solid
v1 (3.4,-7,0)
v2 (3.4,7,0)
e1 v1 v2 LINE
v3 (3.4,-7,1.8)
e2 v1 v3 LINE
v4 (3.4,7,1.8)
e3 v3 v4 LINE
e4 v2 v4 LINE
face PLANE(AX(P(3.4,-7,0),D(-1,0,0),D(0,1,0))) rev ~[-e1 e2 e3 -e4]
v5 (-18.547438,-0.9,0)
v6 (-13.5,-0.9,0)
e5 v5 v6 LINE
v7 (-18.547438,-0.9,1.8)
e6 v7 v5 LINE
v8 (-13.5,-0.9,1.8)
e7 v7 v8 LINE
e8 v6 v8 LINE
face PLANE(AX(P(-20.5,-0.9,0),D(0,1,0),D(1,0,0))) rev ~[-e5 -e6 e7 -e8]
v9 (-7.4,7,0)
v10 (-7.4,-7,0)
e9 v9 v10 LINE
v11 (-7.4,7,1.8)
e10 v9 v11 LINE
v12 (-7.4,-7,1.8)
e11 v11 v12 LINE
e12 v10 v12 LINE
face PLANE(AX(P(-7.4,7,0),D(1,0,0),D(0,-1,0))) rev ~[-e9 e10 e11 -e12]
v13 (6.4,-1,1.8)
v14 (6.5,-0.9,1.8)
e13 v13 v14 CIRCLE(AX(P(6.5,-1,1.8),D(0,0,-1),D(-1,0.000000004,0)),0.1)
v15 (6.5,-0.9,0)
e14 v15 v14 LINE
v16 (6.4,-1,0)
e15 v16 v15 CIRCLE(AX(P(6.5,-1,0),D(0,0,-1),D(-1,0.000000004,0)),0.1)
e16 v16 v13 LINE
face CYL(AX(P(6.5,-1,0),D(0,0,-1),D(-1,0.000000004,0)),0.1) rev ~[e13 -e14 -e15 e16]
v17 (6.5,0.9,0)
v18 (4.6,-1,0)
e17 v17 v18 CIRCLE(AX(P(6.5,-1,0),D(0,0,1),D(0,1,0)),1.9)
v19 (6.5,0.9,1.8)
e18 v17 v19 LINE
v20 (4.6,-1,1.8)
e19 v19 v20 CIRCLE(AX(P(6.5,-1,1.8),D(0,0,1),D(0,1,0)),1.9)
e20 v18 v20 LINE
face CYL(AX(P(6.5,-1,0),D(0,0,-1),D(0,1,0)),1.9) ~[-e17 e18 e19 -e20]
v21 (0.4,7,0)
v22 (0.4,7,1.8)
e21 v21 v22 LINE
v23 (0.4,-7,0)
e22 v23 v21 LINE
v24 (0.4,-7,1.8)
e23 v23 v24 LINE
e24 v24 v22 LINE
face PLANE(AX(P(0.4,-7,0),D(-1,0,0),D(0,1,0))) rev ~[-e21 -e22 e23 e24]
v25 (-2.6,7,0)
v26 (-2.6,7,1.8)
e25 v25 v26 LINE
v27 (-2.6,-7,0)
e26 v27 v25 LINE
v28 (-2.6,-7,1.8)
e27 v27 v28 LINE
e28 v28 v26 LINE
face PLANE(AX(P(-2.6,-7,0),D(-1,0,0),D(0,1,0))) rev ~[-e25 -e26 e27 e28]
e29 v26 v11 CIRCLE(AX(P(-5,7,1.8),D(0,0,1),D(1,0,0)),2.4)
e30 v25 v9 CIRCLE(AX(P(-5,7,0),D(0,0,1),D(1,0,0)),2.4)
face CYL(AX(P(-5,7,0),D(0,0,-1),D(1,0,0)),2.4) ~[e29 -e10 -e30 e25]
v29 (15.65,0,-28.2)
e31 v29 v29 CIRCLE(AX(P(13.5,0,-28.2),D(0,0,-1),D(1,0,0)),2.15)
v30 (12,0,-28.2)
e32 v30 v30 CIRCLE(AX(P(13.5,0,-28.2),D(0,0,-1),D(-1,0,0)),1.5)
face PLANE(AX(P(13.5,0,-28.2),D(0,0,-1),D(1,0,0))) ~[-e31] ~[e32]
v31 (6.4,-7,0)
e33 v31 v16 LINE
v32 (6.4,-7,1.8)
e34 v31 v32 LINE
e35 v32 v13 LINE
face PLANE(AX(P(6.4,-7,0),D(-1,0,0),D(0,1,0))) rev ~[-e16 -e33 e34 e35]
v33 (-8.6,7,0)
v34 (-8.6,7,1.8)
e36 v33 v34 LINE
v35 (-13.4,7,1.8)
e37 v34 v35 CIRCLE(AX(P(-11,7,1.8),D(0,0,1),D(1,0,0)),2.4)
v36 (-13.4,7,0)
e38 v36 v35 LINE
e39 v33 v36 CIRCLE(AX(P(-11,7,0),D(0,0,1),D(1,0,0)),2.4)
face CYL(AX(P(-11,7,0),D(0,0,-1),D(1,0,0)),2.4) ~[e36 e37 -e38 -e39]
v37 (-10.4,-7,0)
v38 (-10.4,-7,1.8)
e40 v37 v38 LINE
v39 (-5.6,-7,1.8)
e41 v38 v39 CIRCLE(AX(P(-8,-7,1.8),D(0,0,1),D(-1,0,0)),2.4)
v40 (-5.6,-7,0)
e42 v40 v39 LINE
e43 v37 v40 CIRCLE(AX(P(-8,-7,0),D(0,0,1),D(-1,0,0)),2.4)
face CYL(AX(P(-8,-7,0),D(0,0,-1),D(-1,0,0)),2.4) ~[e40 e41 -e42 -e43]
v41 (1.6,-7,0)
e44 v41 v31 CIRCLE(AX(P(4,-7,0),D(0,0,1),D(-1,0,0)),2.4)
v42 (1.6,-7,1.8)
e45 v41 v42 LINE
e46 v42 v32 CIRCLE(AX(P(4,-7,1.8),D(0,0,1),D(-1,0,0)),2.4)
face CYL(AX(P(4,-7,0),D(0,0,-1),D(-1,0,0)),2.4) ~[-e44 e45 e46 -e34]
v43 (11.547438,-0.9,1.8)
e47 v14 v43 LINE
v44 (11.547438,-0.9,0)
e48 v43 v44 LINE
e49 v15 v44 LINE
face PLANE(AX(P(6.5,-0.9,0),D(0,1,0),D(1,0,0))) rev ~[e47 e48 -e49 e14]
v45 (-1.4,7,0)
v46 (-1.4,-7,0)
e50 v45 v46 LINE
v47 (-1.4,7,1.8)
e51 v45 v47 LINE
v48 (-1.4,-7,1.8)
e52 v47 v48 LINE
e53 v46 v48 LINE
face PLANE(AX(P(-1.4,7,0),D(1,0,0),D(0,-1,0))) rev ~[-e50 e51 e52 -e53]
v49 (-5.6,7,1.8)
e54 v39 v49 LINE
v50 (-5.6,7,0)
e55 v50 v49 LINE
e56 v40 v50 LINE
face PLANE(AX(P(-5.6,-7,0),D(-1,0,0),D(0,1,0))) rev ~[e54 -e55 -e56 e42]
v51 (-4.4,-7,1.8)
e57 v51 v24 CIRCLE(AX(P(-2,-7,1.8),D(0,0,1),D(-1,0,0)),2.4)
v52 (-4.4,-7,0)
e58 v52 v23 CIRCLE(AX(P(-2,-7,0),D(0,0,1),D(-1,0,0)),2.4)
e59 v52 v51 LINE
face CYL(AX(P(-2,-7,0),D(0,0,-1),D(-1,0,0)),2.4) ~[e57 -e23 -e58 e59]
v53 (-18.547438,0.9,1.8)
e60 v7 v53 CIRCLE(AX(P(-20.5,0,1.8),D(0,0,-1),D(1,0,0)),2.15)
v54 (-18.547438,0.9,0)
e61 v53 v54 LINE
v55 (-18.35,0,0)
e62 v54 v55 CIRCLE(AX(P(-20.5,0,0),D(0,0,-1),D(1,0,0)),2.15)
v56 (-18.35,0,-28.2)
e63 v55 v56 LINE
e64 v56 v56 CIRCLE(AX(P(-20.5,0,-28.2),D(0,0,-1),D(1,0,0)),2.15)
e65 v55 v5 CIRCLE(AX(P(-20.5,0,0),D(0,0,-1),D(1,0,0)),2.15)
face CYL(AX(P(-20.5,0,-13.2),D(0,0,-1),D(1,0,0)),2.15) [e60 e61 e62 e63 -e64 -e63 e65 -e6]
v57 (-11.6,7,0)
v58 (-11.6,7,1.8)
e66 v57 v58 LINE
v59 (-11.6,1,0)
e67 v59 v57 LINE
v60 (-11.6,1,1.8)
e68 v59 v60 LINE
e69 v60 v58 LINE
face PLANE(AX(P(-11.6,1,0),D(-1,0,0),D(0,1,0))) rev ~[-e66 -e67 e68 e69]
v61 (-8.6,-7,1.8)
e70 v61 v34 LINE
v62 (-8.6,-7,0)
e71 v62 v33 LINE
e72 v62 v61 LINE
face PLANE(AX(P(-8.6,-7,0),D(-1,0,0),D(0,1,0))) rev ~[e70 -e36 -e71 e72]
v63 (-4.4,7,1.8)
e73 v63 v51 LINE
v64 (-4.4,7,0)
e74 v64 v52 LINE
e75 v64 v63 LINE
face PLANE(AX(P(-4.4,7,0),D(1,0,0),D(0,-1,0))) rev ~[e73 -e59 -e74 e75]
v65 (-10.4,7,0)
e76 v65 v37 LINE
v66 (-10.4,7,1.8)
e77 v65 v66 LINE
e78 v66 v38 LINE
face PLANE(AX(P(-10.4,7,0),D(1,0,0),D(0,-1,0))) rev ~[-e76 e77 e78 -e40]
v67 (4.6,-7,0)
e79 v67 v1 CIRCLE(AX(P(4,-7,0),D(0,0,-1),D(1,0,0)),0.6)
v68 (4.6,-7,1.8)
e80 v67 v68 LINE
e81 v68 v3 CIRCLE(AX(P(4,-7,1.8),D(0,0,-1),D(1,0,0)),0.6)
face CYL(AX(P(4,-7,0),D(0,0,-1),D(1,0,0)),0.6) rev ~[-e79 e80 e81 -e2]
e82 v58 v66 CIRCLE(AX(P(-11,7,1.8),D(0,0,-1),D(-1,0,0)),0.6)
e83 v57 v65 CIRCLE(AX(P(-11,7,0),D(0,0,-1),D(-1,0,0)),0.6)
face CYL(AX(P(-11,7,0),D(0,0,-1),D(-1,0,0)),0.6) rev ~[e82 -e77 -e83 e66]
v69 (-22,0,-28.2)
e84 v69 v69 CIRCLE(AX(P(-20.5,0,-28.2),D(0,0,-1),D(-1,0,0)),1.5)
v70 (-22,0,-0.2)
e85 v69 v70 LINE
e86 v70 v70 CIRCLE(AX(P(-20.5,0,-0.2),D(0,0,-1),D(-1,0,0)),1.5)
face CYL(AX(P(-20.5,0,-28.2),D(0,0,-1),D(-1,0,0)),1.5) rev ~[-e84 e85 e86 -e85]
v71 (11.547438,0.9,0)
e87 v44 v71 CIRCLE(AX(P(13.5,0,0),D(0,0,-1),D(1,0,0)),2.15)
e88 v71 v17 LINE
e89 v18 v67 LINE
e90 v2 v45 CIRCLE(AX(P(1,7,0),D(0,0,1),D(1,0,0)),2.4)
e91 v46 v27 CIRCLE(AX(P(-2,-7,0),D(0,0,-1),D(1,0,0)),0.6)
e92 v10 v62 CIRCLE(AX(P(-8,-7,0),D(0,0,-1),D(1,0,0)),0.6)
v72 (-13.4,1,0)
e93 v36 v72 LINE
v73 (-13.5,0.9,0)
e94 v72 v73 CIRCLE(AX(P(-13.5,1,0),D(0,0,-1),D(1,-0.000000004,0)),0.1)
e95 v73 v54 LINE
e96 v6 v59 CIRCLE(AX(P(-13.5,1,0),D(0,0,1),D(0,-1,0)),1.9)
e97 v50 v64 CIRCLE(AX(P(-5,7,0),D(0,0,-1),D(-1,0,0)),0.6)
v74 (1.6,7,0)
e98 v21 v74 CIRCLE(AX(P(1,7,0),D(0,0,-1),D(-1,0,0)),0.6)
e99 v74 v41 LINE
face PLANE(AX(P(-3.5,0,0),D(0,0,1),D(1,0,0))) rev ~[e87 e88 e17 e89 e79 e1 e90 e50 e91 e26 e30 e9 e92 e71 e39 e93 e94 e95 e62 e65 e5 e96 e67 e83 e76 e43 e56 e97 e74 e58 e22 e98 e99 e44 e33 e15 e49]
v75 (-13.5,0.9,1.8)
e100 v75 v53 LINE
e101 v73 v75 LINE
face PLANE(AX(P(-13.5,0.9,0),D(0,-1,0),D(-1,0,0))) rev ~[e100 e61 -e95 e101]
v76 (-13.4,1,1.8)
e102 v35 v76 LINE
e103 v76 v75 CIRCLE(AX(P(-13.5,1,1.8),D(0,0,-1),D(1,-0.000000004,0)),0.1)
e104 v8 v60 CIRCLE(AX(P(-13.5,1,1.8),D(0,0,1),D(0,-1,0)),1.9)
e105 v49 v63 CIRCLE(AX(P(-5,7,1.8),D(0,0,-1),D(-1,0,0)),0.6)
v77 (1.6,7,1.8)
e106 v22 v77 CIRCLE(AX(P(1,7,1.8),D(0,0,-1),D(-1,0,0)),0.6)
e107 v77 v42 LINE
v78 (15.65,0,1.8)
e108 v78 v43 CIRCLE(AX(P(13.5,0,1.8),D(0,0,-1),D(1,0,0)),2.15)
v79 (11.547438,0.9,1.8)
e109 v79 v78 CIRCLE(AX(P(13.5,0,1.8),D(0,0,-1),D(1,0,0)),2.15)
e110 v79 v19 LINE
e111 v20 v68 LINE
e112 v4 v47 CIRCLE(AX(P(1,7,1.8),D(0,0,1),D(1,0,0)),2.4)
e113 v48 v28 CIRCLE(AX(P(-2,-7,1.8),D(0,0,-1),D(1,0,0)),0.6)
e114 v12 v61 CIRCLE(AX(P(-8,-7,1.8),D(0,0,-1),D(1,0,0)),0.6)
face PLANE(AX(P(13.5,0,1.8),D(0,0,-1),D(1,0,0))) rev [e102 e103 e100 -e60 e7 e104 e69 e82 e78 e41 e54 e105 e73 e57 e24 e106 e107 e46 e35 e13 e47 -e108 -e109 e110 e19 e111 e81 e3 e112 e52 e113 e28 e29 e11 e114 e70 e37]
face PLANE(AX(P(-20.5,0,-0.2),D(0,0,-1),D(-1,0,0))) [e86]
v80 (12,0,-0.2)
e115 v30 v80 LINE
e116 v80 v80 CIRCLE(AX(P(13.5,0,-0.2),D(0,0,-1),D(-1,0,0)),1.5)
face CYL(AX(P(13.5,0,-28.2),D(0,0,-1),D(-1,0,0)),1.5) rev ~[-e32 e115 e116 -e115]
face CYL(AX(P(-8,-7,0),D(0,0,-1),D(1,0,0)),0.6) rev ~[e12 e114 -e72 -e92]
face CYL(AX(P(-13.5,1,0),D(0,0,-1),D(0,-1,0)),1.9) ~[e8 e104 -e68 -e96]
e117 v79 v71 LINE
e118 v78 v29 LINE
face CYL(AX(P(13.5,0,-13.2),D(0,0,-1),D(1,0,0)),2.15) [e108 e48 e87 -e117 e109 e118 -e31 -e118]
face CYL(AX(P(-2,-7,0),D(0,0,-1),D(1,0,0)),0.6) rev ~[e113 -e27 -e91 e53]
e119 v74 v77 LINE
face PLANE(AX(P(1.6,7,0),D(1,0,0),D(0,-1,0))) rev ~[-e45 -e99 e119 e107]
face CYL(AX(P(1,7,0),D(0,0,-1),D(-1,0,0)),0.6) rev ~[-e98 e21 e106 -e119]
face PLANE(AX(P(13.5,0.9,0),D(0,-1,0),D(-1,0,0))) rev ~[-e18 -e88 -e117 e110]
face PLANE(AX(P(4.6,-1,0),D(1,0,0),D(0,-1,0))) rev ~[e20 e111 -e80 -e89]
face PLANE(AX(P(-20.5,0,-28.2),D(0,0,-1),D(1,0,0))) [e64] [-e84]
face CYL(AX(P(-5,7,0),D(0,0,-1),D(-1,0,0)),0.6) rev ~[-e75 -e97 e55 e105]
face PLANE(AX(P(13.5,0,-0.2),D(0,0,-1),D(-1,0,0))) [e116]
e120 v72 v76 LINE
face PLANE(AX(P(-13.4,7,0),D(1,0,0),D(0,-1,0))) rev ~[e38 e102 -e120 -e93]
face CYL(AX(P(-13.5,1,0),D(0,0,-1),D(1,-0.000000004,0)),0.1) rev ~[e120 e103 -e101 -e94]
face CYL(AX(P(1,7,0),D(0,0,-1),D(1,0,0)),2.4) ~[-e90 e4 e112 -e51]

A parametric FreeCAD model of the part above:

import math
import FreeCAD as App
import Part
import Sketcher

V = App.Vector

doc = App.newDocument("Part")
params = doc.addObject("Spreadsheet::Sheet", "Params")
for row, (alias, value) in enumerate([
    ("sketch1_radius", "1.9 mm"),
    ("sketch1_radius2", "0.6 mm"),
    ("sketch1_radius3", "2.4 mm"),
    ("sketch1_width", "7 mm"),
    ("sketch1_height", "6 mm"),
    ("pad1_length", "1.8 mm"),
    ("sketch2_height", "30 mm"),
    ("sketch2_width", "2.15 mm"),
    ("revolution_angle", "360 deg"),
    ("sketch3_height", "30 mm"),
    ("sketch3_width", "2.15 mm"),
    ("revolution2_angle", "360 deg"),
    ("sketch4_diameter", "3 mm"),
    ("pocket1_length", "28 mm"),
], start=1):
    params.set(f"A{row}", alias)
    params.set(f"B{row}", "=" + value)
    params.setAlias(f"B{row}", alias)

body = doc.addObject("PartDesign::Body", "Body")

# Sketch on XY plane
sketch1 = body.newObject("Sketcher::SketchObject", "Sketch")
sketch1.AttachmentSupport = (doc.getObject("XY_Plane"), [""])
sketch1.MapMode = "FlatFace"
sketch1.addGeometry([
    Part.LineSegment(V(-20.5, -0.9, 0), V(-13.5, -0.9, 0)),  # 0
    Part.ArcOfCircle(Part.Circle(V(-13.5, 1, 0), V(0, 0, 1), 1.9), math.radians(-90), math.radians(0)),  # 1
    Part.LineSegment(V(-11.6, 1, 0), V(-11.6, 7, 0)),  # 2
    Part.ArcOfCircle(Part.Circle(V(-11, 7, 0), V(0, 0, 1), 0.6), math.radians(0), math.radians(180)),  # 3
    Part.LineSegment(V(-10.4, 7, 0), V(-10.4, -7, 0)),  # 4
    Part.ArcOfCircle(Part.Circle(V(-8, -7, 0), V(0, 0, 1), 2.4), math.radians(180), math.radians(360)),  # 5
    Part.LineSegment(V(-5.6, -7, 0), V(-5.6, 7, 0)),  # 6
    Part.ArcOfCircle(Part.Circle(V(-5, 7, 0), V(0, 0, 1), 0.6), math.radians(0), math.radians(180)),  # 7
    Part.LineSegment(V(-4.4, 7, 0), V(-4.4, -7, 0)),  # 8
    Part.ArcOfCircle(Part.Circle(V(-2, -7, 0), V(0, 0, 1), 2.4), math.radians(180), math.radians(360)),  # 9
    Part.LineSegment(V(0.4, -7, 0), V(0.4, 7, 0)),  # 10
    Part.ArcOfCircle(Part.Circle(V(1, 7, 0), V(0, 0, 1), 0.6), math.radians(0), math.radians(180)),  # 11
    Part.LineSegment(V(1.6, 7, 0), V(1.6, -7, 0)),  # 12
    Part.ArcOfCircle(Part.Circle(V(4, -7, 0), V(0, 0, 1), 2.4), math.radians(180), math.radians(360)),  # 13
    Part.LineSegment(V(6.4, -7, 0), V(6.4, -1, 0)),  # 14
    Part.ArcOfCircle(Part.Circle(V(6.5, -1, 0), V(0, 0, 1), 0.1), math.radians(90), math.radians(180)),  # 15
    Part.LineSegment(V(6.5, -0.9, 0), V(13.5, -0.9, 0)),  # 16
    Part.ArcOfCircle(Part.Circle(V(13.5, 0, 0), V(0, 0, 1), 0.9), math.radians(-90), math.radians(90)),  # 17
    Part.LineSegment(V(13.5, 0.9, 0), V(6.5, 0.9, 0)),  # 18
    Part.ArcOfCircle(Part.Circle(V(6.5, -1, 0), V(0, 0, 1), 1.9), math.radians(90), math.radians(180)),  # 19
    Part.LineSegment(V(4.6, -1, 0), V(4.6, -7, 0)),  # 20
    Part.ArcOfCircle(Part.Circle(V(4, -7, 0), V(0, 0, 1), 0.6), math.radians(180), math.radians(360)),  # 21
    Part.LineSegment(V(3.4, -7, 0), V(3.4, 7, 0)),  # 22
    Part.ArcOfCircle(Part.Circle(V(1, 7, 0), V(0, 0, 1), 2.4), math.radians(0), math.radians(180)),  # 23
    Part.LineSegment(V(-1.4, 7, 0), V(-1.4, -7, 0)),  # 24
    Part.ArcOfCircle(Part.Circle(V(-2, -7, 0), V(0, 0, 1), 0.6), math.radians(180), math.radians(360)),  # 25
    Part.LineSegment(V(-2.6, -7, 0), V(-2.6, 7, 0)),  # 26
    Part.ArcOfCircle(Part.Circle(V(-5, 7, 0), V(0, 0, 1), 2.4), math.radians(0), math.radians(180)),  # 27
    Part.LineSegment(V(-7.4, 7, 0), V(-7.4, -7, 0)),  # 28
    Part.ArcOfCircle(Part.Circle(V(-8, -7, 0), V(0, 0, 1), 0.6), math.radians(180), math.radians(360)),  # 29
    Part.LineSegment(V(-8.6, -7, 0), V(-8.6, 7, 0)),  # 30
    Part.ArcOfCircle(Part.Circle(V(-11, 7, 0), V(0, 0, 1), 2.4), math.radians(0), math.radians(180)),  # 31
    Part.LineSegment(V(-13.4, 7, 0), V(-13.4, 1, 0)),  # 32
    Part.ArcOfCircle(Part.Circle(V(-13.5, 1, 0), V(0, 0, 1), 0.1), math.radians(-90), math.radians(0)),  # 33
    Part.LineSegment(V(-13.5, 0.9, 0), V(-20.5, 0.9, 0)),  # 34
    Part.ArcOfCircle(Part.Circle(V(-20.5, 0, 0), V(0, 0, 1), 0.9), math.radians(90), math.radians(270)),  # 35
], False)
sketch1.addConstraint([
    Sketcher.Constraint("Tangent", 0, 2, 1, 1),
    Sketcher.Constraint("Tangent", 1, 2, 2, 1),
    Sketcher.Constraint("Tangent", 2, 2, 3, 2),
    Sketcher.Constraint("Tangent", 3, 1, 4, 1),
    Sketcher.Constraint("Tangent", 4, 2, 5, 1),
    Sketcher.Constraint("Tangent", 5, 2, 6, 1),
    Sketcher.Constraint("Tangent", 6, 2, 7, 2),
    Sketcher.Constraint("Tangent", 7, 1, 8, 1),
    Sketcher.Constraint("Tangent", 8, 2, 9, 1),
    Sketcher.Constraint("Tangent", 9, 2, 10, 1),
    Sketcher.Constraint("Tangent", 10, 2, 11, 2),
    Sketcher.Constraint("Tangent", 11, 1, 12, 1),
    Sketcher.Constraint("Tangent", 12, 2, 13, 1),
    Sketcher.Constraint("Tangent", 13, 2, 14, 1),
    Sketcher.Constraint("Tangent", 14, 2, 15, 2),
    Sketcher.Constraint("Tangent", 15, 1, 16, 1),
    Sketcher.Constraint("Tangent", 16, 2, 17, 1),
    Sketcher.Constraint("Tangent", 17, 2, 18, 1),
    Sketcher.Constraint("Tangent", 18, 2, 19, 1),
    Sketcher.Constraint("Tangent", 19, 2, 20, 1),
    Sketcher.Constraint("Tangent", 20, 2, 21, 2),
    Sketcher.Constraint("Tangent", 21, 1, 22, 1),
    Sketcher.Constraint("Tangent", 22, 2, 23, 1),
    Sketcher.Constraint("Tangent", 23, 2, 24, 1),
    Sketcher.Constraint("Tangent", 24, 2, 25, 2),
    Sketcher.Constraint("Tangent", 25, 1, 26, 1),
    Sketcher.Constraint("Tangent", 26, 2, 27, 1),
    Sketcher.Constraint("Tangent", 27, 2, 28, 1),
    Sketcher.Constraint("Tangent", 28, 2, 29, 2),
    Sketcher.Constraint("Tangent", 29, 1, 30, 1),
    Sketcher.Constraint("Tangent", 30, 2, 31, 1),
    Sketcher.Constraint("Tangent", 31, 2, 32, 1),
    Sketcher.Constraint("Tangent", 32, 2, 33, 2),
    Sketcher.Constraint("Tangent", 33, 1, 34, 1),
    Sketcher.Constraint("Tangent", 34, 2, 35, 1),
    Sketcher.Constraint("Tangent", 35, 2, 0, 1),
    Sketcher.Constraint("Horizontal", 0),
    Sketcher.Constraint("Vertical", 2),
    Sketcher.Constraint("Vertical", 4),
    Sketcher.Constraint("Vertical", 6),
    Sketcher.Constraint("Vertical", 8),
    Sketcher.Constraint("Vertical", 10),
    Sketcher.Constraint("Vertical", 12),
    Sketcher.Constraint("Vertical", 14),
    Sketcher.Constraint("Horizontal", 16),
    Sketcher.Constraint("Horizontal", 18),
    Sketcher.Constraint("Vertical", 20),
    Sketcher.Constraint("Vertical", 22),
    Sketcher.Constraint("Vertical", 24),
    Sketcher.Constraint("Vertical", 26),
    Sketcher.Constraint("Vertical", 28),
    Sketcher.Constraint("Vertical", 30),
    Sketcher.Constraint("Vertical", 32),
    Sketcher.Constraint("Horizontal", 34),
    Sketcher.Constraint("Coincident", 19, 3, 15, 3),
    Sketcher.Constraint("Coincident", 21, 3, 13, 3),
    Sketcher.Constraint("Coincident", 23, 3, 11, 3),
    Sketcher.Constraint("Coincident", 25, 3, 9, 3),
    Sketcher.Constraint("Coincident", 27, 3, 7, 3),
    Sketcher.Constraint("Coincident", 29, 3, 5, 3),
    Sketcher.Constraint("Coincident", 31, 3, 3, 3),
    Sketcher.Constraint("Coincident", 33, 3, 1, 3),
    Sketcher.Constraint("Equal", 3, 7),
    Sketcher.Constraint("Equal", 5, 9),
    Sketcher.Constraint("Equal", 7, 11),
    Sketcher.Constraint("Equal", 9, 13),
    Sketcher.Constraint("Equal", 1, 19),
    Sketcher.Constraint("Equal", 11, 21),
    Sketcher.Constraint("Symmetric", 0, 2, 17, 2, -1, 1),
    Sketcher.Constraint("PointOnObject", 17, 3, -1),
    Sketcher.Constraint("Horizontal", 3, 3, 7, 3),
    Sketcher.Constraint("Horizontal", 5, 3, 9, 3),
    Sketcher.Constraint("Horizontal", 7, 3, 11, 3),
    Sketcher.Constraint("Horizontal", 9, 3, 13, 3),
    Sketcher.Constraint("Equal", 0, 16),
    Sketcher.Constraint("Equal", 2, 14),
    Sketcher.Constraint("Radius", 1, 1.9),
    Sketcher.Constraint("Radius", 3, 0.6),
    Sketcher.Constraint("Radius", 5, 2.4),
    Sketcher.Constraint("DistanceX", 0, 1, 0, 2, 7.0),
    Sketcher.Constraint("DistanceY", 2, 1, 2, 2, 6.0),
])
sketch1.setExpression("Constraints[76]", "Params.sketch1_radius")
sketch1.setExpression("Constraints[77]", "Params.sketch1_radius2")
sketch1.setExpression("Constraints[78]", "Params.sketch1_radius3")
sketch1.setExpression("Constraints[79]", "Params.sketch1_width")
sketch1.setExpression("Constraints[80]", "Params.sketch1_height")
pad1 = body.newObject("PartDesign::Pad", "Pad")
pad1.Profile = sketch1
pad1.setExpression("Length", "Params.pad1_length")

# Sketch on XZ plane
sketch2 = body.newObject("Sketcher::SketchObject", "Sketch001")
sketch2.AttachmentSupport = (doc.getObject("XZ_Plane"), [""])
sketch2.MapMode = "FlatFace"
sketch2.addGeometry([
    Part.LineSegment(V(-22.65, -28.2, 0), V(-22.65, 1.8, 0)),
    Part.LineSegment(V(-22.65, 1.8, 0), V(-20.5, 1.8, 0)),
    Part.LineSegment(V(-20.5, 1.8, 0), V(-20.5, -28.2, 0)),
    Part.LineSegment(V(-20.5, -28.2, 0), V(-22.65, -28.2, 0)),
], False)
sketch2.addGeometry(Part.LineSegment(V(-20.5, 1.8, 0), V(-20.5, -28.2, 0)), True)  # axis
sketch2.addConstraint([
    Sketcher.Constraint("Coincident", 0, 2, 1, 1),
    Sketcher.Constraint("Coincident", 1, 2, 2, 1),
    Sketcher.Constraint("Coincident", 2, 2, 3, 1),
    Sketcher.Constraint("Coincident", 3, 2, 0, 1),
    Sketcher.Constraint("Vertical", 0),
    Sketcher.Constraint("Horizontal", 1),
    Sketcher.Constraint("Vertical", 2),
    Sketcher.Constraint("Horizontal", 3),
    Sketcher.Constraint("Vertical", 4),
    Sketcher.Constraint("Coincident", 4, 1, 1, 2),
    Sketcher.Constraint("Horizontal", 3, 2, 4, 2),
    Sketcher.Constraint("DistanceY", 0, 1, 0, 2, 30.0),
    Sketcher.Constraint("DistanceX", 1, 1, 1, 2, 2.15),
    Sketcher.Constraint("DistanceY", -1, 1, 0, 2, 1.8),
    Sketcher.Constraint("DistanceX", 1, 2, -1, 1, 20.5),
])
sketch2.setExpression("Constraints[11]", "Params.sketch2_height")
sketch2.setExpression("Constraints[12]", "Params.sketch2_width")
revolution = body.newObject("PartDesign::Revolution", "Revolution")
revolution.Profile = sketch2
revolution.ReferenceAxis = (sketch2, ["Axis0"])
revolution.setExpression("Angle", "Params.revolution_angle")

# Sketch on XZ plane
sketch3 = body.newObject("Sketcher::SketchObject", "Sketch002")
sketch3.AttachmentSupport = (doc.getObject("XZ_Plane"), [""])
sketch3.MapMode = "FlatFace"
sketch3.addGeometry([
    Part.LineSegment(V(13.5, -28.2, 0), V(13.5, 1.8, 0)),
    Part.LineSegment(V(13.5, 1.8, 0), V(15.65, 1.8, 0)),
    Part.LineSegment(V(15.65, 1.8, 0), V(15.65, -28.2, 0)),
    Part.LineSegment(V(15.65, -28.2, 0), V(13.5, -28.2, 0)),
], False)
sketch3.addGeometry(Part.LineSegment(V(13.5, 1.8, 0), V(13.5, -28.2, 0)), True)  # axis
sketch3.addConstraint([
    Sketcher.Constraint("Coincident", 0, 2, 1, 1),
    Sketcher.Constraint("Coincident", 1, 2, 2, 1),
    Sketcher.Constraint("Coincident", 2, 2, 3, 1),
    Sketcher.Constraint("Coincident", 3, 2, 0, 1),
    Sketcher.Constraint("Vertical", 0),
    Sketcher.Constraint("Horizontal", 1),
    Sketcher.Constraint("Vertical", 2),
    Sketcher.Constraint("Horizontal", 3),
    Sketcher.Constraint("Vertical", 4),
    Sketcher.Constraint("Coincident", 4, 1, 0, 2),
    Sketcher.Constraint("Horizontal", 2, 2, 4, 2),
    Sketcher.Constraint("DistanceY", 0, 1, 0, 2, 30.0),
    Sketcher.Constraint("DistanceX", 1, 1, 1, 2, 2.15),
    Sketcher.Constraint("DistanceX", -1, 1, 0, 2, 13.5),
    Sketcher.Constraint("DistanceY", -1, 1, 0, 2, 1.8),
])
sketch3.setExpression("Constraints[11]", "Params.sketch3_height")
sketch3.setExpression("Constraints[12]", "Params.sketch3_width")
revolution2 = body.newObject("PartDesign::Revolution", "Revolution001")
revolution2.Profile = sketch3
revolution2.ReferenceAxis = (sketch3, ["Axis0"])
revolution2.setExpression("Angle", "Params.revolution2_angle")

# Sketch on XY plane
sketch4 = body.newObject("Sketcher::SketchObject", "Sketch003")
sketch4.AttachmentSupport = (doc.getObject("XY_Plane"), [""])
sketch4.MapMode = "FlatFace"
sketch4.AttachmentOffset = App.Placement(V(0, 0, -28.2), App.Rotation())
sketch4.addGeometry([
    Part.Circle(V(13.5, 0, 0), V(0, 0, 1), 1.5),
    Part.Circle(V(-20.5, 0, 0), V(0, 0, 1), 1.5),
], False)
sketch4.addConstraint([
    Sketcher.Constraint("Equal", 0, 1),
    Sketcher.Constraint("PointOnObject", 0, 3, -1),
    Sketcher.Constraint("PointOnObject", 1, 3, -1),
    Sketcher.Constraint("Diameter", 0, 3.0),
    Sketcher.Constraint("DistanceX", 1, 3, 0, 3, 34.0),
    Sketcher.Constraint("DistanceX", -1, 1, 0, 3, 13.5),
])
sketch4.setExpression("Constraints[3]", "Params.sketch4_diameter")
pocket1 = body.newObject("PartDesign::Pocket", "Pocket")
pocket1.Profile = sketch4
pocket1.setExpression("Length", "Params.pocket1_length")
pocket1.Reversed = True

doc.recompute()
